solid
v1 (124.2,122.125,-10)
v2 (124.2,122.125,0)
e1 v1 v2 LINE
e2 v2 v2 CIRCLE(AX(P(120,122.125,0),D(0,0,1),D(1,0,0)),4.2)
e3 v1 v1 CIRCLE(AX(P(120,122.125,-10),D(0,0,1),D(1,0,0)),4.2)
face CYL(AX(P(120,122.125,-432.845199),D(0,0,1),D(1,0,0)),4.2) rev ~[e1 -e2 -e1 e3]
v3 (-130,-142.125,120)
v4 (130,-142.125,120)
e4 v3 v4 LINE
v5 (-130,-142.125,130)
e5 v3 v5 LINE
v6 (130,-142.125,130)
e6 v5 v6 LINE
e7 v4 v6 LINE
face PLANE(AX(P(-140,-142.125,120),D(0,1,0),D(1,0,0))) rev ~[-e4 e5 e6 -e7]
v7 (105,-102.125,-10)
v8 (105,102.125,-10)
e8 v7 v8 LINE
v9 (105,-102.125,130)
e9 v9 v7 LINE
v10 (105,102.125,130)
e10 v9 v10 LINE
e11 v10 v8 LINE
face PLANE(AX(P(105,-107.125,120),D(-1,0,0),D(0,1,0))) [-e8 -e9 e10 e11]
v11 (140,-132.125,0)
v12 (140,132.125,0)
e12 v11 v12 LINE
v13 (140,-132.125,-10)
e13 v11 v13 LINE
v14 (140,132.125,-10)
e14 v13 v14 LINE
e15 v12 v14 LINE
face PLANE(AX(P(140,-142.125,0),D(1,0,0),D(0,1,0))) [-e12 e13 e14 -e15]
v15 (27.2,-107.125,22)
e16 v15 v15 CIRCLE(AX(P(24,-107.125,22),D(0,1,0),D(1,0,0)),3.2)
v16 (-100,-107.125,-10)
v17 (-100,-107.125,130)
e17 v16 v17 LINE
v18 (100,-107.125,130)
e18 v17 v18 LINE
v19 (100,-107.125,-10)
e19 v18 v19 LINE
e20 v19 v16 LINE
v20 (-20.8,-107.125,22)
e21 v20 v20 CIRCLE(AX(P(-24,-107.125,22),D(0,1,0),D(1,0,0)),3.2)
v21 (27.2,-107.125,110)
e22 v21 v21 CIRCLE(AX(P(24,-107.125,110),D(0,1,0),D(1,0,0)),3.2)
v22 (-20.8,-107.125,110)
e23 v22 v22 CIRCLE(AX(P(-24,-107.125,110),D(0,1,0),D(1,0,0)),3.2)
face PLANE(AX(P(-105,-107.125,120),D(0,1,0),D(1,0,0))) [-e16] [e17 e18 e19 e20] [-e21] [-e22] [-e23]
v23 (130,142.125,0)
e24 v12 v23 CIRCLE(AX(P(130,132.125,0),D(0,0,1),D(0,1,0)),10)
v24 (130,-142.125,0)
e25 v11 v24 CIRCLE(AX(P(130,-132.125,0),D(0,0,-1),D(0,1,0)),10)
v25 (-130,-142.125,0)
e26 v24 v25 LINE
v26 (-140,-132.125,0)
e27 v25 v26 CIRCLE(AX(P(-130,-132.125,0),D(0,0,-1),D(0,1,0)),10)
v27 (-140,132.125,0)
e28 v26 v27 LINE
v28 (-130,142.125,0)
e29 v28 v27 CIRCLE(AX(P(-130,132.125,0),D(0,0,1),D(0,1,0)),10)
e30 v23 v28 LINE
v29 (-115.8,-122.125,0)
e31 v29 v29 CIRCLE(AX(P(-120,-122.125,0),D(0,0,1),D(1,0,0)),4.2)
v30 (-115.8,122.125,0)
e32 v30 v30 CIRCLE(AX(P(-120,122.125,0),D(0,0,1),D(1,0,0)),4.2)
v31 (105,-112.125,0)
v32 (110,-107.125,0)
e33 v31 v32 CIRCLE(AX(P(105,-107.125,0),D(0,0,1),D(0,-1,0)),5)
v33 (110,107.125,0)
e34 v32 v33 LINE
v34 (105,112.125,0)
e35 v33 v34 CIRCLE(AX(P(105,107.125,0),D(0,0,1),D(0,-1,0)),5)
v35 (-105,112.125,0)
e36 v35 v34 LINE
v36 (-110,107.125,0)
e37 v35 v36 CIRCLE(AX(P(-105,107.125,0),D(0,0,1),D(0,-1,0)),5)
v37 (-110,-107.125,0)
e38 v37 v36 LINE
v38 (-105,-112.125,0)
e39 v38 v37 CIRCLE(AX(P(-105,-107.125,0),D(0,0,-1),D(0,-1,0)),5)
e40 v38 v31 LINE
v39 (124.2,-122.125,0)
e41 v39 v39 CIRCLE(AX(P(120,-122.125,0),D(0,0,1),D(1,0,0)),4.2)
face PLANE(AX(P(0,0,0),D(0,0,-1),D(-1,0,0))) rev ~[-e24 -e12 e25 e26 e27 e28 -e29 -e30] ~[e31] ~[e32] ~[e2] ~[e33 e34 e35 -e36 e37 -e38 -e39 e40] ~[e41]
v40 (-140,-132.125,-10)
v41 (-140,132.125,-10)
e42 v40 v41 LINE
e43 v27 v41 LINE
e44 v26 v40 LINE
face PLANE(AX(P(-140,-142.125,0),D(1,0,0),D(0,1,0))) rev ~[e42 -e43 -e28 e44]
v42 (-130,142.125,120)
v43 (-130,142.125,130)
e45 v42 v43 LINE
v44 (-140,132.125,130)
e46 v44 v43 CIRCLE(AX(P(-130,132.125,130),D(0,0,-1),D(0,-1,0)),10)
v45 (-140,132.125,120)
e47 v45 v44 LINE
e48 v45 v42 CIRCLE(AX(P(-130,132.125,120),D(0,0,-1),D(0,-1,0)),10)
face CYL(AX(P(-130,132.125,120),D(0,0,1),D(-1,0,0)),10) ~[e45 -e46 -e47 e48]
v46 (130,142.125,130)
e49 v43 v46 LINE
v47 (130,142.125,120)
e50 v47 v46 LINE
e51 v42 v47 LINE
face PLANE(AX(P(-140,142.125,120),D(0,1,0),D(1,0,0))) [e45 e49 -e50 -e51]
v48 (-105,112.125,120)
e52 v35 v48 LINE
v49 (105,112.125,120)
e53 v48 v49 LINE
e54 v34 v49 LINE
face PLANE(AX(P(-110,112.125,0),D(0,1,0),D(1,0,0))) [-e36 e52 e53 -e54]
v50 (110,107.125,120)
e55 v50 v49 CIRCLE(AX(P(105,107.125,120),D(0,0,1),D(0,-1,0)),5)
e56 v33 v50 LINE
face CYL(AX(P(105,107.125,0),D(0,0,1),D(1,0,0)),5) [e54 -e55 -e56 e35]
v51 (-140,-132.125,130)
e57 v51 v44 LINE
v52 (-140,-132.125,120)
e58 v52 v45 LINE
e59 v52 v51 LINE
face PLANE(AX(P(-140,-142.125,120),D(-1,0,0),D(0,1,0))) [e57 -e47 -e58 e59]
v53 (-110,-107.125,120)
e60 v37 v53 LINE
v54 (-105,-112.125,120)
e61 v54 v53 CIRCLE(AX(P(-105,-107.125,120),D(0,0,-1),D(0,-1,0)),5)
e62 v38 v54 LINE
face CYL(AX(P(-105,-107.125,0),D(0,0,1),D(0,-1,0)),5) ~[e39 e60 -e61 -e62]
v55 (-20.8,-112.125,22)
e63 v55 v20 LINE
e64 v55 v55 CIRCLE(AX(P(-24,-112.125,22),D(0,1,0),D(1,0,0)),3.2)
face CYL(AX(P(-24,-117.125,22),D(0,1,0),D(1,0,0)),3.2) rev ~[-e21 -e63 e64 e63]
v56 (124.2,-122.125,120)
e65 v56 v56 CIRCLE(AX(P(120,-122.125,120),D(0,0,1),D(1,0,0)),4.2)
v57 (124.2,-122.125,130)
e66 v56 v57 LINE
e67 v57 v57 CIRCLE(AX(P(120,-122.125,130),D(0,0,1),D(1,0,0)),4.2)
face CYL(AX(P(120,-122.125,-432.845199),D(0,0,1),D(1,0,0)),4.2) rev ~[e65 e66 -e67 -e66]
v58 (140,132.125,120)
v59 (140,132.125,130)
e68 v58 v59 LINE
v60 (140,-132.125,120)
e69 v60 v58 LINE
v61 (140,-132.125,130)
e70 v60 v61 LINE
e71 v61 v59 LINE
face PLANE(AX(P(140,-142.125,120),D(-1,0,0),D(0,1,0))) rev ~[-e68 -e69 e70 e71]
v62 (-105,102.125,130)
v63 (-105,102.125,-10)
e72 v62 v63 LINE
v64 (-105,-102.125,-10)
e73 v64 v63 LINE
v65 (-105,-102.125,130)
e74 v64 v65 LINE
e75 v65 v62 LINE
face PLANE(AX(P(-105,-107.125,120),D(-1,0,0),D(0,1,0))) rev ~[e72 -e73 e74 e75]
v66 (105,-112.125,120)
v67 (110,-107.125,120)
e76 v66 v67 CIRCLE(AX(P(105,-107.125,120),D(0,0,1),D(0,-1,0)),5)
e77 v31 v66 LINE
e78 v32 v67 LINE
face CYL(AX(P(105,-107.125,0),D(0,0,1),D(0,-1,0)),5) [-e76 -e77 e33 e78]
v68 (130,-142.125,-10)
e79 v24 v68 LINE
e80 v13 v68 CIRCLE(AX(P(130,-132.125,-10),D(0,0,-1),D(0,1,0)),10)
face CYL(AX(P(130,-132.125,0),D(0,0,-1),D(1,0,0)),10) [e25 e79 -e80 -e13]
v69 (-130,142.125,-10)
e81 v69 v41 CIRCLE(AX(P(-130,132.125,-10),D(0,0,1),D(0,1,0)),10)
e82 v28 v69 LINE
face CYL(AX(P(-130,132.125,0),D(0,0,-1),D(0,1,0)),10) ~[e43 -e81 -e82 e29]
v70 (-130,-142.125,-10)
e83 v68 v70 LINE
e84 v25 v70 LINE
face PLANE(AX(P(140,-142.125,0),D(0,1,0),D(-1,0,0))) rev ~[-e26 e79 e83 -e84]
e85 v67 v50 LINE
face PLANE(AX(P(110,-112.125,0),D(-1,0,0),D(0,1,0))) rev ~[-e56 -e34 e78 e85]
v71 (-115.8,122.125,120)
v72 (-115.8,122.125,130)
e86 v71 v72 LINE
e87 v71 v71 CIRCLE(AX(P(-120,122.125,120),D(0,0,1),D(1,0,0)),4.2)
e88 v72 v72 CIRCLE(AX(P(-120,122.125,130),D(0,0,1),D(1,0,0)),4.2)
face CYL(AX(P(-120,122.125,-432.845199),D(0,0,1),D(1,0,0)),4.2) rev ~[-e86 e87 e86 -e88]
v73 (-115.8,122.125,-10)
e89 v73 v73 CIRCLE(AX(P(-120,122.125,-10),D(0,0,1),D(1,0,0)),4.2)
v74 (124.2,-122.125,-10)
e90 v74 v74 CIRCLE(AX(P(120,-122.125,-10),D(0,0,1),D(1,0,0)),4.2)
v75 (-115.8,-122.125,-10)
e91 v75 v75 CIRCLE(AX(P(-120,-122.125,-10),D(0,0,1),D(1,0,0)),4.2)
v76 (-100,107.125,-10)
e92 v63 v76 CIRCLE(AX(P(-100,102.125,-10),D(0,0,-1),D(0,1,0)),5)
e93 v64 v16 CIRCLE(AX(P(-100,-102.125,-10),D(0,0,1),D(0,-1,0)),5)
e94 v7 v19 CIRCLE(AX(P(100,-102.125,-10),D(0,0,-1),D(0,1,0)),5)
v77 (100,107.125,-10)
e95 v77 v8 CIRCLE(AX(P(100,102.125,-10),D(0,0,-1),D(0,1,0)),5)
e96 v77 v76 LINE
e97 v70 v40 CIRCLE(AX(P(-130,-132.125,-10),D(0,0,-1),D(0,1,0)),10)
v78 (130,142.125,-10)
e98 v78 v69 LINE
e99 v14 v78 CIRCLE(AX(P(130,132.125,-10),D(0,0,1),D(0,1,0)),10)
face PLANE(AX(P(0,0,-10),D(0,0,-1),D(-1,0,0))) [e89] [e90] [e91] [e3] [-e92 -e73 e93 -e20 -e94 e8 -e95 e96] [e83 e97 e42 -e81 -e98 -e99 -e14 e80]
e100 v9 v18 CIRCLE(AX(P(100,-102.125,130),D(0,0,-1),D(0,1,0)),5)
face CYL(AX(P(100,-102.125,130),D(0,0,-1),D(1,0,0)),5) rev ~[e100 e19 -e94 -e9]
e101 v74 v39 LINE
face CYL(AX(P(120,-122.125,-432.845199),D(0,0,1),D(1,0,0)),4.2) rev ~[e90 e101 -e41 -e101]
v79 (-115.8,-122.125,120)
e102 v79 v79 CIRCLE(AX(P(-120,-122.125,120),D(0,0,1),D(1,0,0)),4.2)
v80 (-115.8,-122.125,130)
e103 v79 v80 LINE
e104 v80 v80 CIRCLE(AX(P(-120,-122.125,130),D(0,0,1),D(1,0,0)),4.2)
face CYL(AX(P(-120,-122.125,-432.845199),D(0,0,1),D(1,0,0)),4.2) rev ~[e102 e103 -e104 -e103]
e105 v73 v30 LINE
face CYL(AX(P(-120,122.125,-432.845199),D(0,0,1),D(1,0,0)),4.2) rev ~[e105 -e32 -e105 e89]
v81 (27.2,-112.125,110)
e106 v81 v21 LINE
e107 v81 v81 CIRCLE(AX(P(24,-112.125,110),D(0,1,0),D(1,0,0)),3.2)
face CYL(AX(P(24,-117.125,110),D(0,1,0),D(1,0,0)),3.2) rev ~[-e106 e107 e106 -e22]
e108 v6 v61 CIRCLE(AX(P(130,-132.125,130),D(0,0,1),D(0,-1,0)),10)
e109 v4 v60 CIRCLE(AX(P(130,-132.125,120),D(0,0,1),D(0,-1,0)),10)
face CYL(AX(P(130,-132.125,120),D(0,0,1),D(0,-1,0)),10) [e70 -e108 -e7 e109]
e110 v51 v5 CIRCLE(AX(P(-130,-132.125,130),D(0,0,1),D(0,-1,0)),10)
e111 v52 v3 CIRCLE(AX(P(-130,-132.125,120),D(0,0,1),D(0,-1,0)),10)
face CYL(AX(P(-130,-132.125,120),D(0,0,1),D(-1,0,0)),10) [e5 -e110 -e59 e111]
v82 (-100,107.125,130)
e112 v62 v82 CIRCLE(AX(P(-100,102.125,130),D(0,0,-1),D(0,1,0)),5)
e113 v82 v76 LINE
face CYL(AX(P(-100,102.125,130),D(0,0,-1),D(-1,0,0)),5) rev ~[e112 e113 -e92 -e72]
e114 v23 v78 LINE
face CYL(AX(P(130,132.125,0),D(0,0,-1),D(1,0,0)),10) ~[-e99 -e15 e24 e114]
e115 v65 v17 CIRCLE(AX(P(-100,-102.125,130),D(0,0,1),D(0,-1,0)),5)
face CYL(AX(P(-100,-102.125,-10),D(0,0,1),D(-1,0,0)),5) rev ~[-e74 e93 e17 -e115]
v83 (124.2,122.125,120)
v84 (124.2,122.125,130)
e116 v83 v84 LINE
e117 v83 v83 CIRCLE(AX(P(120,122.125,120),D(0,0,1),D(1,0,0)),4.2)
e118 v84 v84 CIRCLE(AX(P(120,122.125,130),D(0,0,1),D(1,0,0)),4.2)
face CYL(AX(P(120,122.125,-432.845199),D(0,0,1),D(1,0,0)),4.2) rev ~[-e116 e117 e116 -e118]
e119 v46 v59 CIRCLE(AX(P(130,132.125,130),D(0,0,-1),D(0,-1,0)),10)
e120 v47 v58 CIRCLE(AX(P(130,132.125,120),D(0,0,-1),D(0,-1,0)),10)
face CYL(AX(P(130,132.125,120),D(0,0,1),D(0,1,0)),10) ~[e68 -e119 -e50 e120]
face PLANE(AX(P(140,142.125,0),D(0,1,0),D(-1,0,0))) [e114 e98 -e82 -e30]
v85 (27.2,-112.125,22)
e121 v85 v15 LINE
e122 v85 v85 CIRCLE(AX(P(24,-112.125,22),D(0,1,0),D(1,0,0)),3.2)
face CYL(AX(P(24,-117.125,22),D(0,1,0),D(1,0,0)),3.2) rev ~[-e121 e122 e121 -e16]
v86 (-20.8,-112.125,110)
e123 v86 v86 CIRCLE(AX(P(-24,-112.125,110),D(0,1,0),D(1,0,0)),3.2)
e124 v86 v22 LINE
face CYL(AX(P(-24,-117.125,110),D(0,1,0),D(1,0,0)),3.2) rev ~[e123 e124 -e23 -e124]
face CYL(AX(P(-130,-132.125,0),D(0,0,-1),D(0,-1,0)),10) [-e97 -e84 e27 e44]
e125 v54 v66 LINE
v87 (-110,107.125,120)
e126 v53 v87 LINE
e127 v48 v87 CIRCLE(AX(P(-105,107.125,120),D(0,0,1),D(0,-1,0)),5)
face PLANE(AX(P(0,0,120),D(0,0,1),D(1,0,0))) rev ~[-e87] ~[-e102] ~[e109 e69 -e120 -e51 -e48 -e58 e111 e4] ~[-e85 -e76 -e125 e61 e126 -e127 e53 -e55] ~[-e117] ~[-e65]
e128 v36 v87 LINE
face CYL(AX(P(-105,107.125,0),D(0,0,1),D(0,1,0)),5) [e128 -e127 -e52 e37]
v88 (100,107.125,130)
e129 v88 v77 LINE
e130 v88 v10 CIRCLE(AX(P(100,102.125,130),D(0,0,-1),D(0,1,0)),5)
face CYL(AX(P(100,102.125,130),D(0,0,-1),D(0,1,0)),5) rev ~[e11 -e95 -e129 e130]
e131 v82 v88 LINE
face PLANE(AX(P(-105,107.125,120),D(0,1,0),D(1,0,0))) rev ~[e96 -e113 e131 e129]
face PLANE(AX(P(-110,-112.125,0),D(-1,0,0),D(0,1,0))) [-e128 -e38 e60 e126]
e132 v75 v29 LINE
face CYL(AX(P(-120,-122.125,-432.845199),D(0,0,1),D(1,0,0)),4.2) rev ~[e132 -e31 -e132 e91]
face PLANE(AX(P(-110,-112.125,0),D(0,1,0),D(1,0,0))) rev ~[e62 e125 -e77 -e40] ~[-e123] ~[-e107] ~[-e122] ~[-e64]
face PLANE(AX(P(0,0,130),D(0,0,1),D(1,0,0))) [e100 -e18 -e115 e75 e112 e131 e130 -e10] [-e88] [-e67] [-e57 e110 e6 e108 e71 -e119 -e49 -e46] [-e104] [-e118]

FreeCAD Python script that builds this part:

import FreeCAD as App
import Part
import Sketcher


def edges_at(feature, points):
    """Names of the edges that pass closest to the given points."""
    edges = feature.Shape.Edges
    near = lambda p: min(range(len(edges)), key=lambda i: edges[i].distToShape(Part.Vertex(*p))[0])
    return sorted({f"Edge{near(p) + 1}" for p in points})


def add_polygon(sketch, points):
    """Adds a closed chain of lines whose ends are joined by coincident constraints."""
    first, n = sketch.GeometryCount, len(points)
    for a, b in zip(points, points[1:] + points[:1]):
        sketch.addGeometry(Part.LineSegment(App.Vector(*a, 0), App.Vector(*b, 0)), False)
    for i in range(n):
        sketch.addConstraint(Sketcher.Constraint("Coincident", first + i, 2, first + (i + 1) % n, 1))

doc = App.newDocument("Part")
body = doc.addObject("PartDesign::Body", "Body")

sketch1 = body.newObject("Sketcher::SketchObject", "Sketch")
sketch1.AttachmentSupport = (doc.getObject("XY_Plane"), [""])
sketch1.MapMode = "FlatFace"
add_polygon(sketch1, [(-110, 112), (-110, -112), (110, -112), (110, 112)])
add_polygon(sketch1, [(105, -107), (-105, -107), (-105, 107), (105, 107)])
sketch1.addConstraint([
    Sketcher.Constraint("Vertical", 0),
    Sketcher.Constraint("Horizontal", 1),
    Sketcher.Constraint("Vertical", 2),
    Sketcher.Constraint("Horizontal", 3),
    Sketcher.Constraint("Horizontal", 4),
    Sketcher.Constraint("Vertical", 5),
    Sketcher.Constraint("Horizontal", 6),
    Sketcher.Constraint("Vertical", 7),
    Sketcher.Constraint("Symmetric", 0, 2, 2, 2, -1, 1),
    Sketcher.Constraint("Symmetric", 4, 2, 6, 2, -1, 1),
    Sketcher.Constraint("DistanceX", 1, 1, 1, 2, 220.0),
    Sketcher.Constraint("DistanceX", 4, 2, 4, 1, 210.0),
    Sketcher.Constraint("DistanceY", 0, 2, 4, 2, 5.0),
    Sketcher.Constraint("DistanceY", 0, 2, 0, 1, 224.25),
])
pad1 = body.newObject("PartDesign::Pad", "Pad")
pad1.Profile = sketch1
pad1.Length = 120

sketch2 = body.newObject("Sketcher::SketchObject", "Sketch001")
sketch2.AttachmentSupport = (doc.getObject("XY_Plane"), [""])
sketch2.MapMode = "FlatFace"
add_polygon(sketch2, [(140, 142), (140, -142), (-140, -142), (-140, 142)])
add_polygon(sketch2, [(-105, -107), (105, -107), (105, 107), (-105, 107)])
sketch2.addConstraint([
    Sketcher.Constraint("Vertical", 0),
    Sketcher.Constraint("Horizontal", 1),
    Sketcher.Constraint("Vertical", 2),
    Sketcher.Constraint("Horizontal", 3),
    Sketcher.Constraint("Horizontal", 4),
    Sketcher.Constraint("Vertical", 5),
    Sketcher.Constraint("Horizontal", 6),
    Sketcher.Constraint("Vertical", 7),
    Sketcher.Constraint("Symmetric", 0, 2, 2, 2, -1, 1),
    Sketcher.Constraint("Symmetric", 4, 2, 6, 2, -1, 1),
    Sketcher.Constraint("DistanceX", 1, 2, 1, 1, 280.0),
    Sketcher.Constraint("DistanceX", 4, 1, 4, 2, 210.0),
    Sketcher.Constraint("DistanceY", 0, 2, 4, 2, 35.0),
    Sketcher.Constraint("DistanceY", 0, 2, 0, 1, 284.25),
])
pad2 = body.newObject("PartDesign::Pad", "Pad001")
pad2.Profile = sketch2
pad2.Length = 10
pad2.Reversed = True

sketch3 = body.newObject("Sketcher::SketchObject", "Sketch002")
sketch3.AttachmentSupport = (doc.getObject("XY_Plane"), [""])
sketch3.MapMode = "FlatFace"
sketch3.AttachmentOffset = App.Placement(App.Vector(0, 0, 120), App.Rotation())
add_polygon(sketch3, [(-140, 142), (-140, -142), (140, -142), (140, 142)])
add_polygon(sketch3, [(105, -107), (-105, -107), (-105, 107), (105, 107)])
sketch3.addConstraint([
    Sketcher.Constraint("Vertical", 0),
    Sketcher.Constraint("Horizontal", 1),
    Sketcher.Constraint("Vertical", 2),
    Sketcher.Constraint("Horizontal", 3),
    Sketcher.Constraint("Horizontal", 4),
    Sketcher.Constraint("Vertical", 5),
    Sketcher.Constraint("Horizontal", 6),
    Sketcher.Constraint("Vertical", 7),
    Sketcher.Constraint("Symmetric", 0, 2, 2, 2, -1, 1),
    Sketcher.Constraint("Symmetric", 4, 2, 6, 2, -1, 1),
    Sketcher.Constraint("DistanceX", 1, 1, 1, 2, 280.0),
    Sketcher.Constraint("DistanceX", 4, 2, 4, 1, 210.0),
    Sketcher.Constraint("DistanceY", 0, 2, 4, 2, 35.0),
    Sketcher.Constraint("DistanceY", 0, 2, 0, 1, 284.25),
])
pad3 = body.newObject("PartDesign::Pad", "Pad002")
pad3.Profile = sketch3
pad3.Length = 10
doc.recompute()

fillet = body.newObject("PartDesign::Fillet", "Fillet")
fillet.Base = (pad3, edges_at(pad3, [
    (105, -107.125, 60),
    (105, 107.125, 60),
    (-105, 107.125, 60),
    (-105, -107.125, 60),
    (110, -112.125, 60),
    (-110, -112.125, 60),
    (-110, 112.125, 60),
    (110, 112.125, 60),
]))
fillet.Radius = 5
doc.recompute()

fillet2 = body.newObject("PartDesign::Fillet", "Fillet001")
fillet2.Base = (fillet, edges_at(fillet, [
    (140, 142.125, -5),
    (140, -142.125, -5),
    (-140, -142.125, -5),
    (-140, 142.125, -5),
    (-140, 142.125, 125),
    (-140, -142.125, 125),
    (140, -142.125, 125),
    (140, 142.125, 125),
]))
fillet2.Radius = 10

sketch4 = body.newObject("Sketcher::SketchObject", "Sketch003")
sketch4.AttachmentSupport = (doc.getObject("XY_Plane"), [""])
sketch4.MapMode = "FlatFace"
sketch4.AttachmentOffset = App.Placement(App.Vector(0, 0, -10), App.Rotation())
sketch4.addGeometry([
    Part.Circle(App.Vector(-120, -122.1, 0), App.Vector(0, 0, 1), 4.2),
    Part.Circle(App.Vector(-120, 122.1, 0), App.Vector(0, 0, 1), 4.2),
    Part.Circle(App.Vector(120, 122.1, 0), App.Vector(0, 0, 1), 4.2),
    Part.Circle(App.Vector(120, -122.1, 0), App.Vector(0, 0, 1), 4.2),
], False)
sketch4.addConstraint([
    Sketcher.Constraint("Equal", 0, 1),
    Sketcher.Constraint("Equal", 1, 2),
    Sketcher.Constraint("Equal", 2, 3),
    Sketcher.Constraint("Symmetric", 0, 3, 2, 3, -1, 1),
    Sketcher.Constraint("Symmetric", 1, 3, 3, 3, -1, 1),
    Sketcher.Constraint("Symmetric", 1, 3, 2, 3, -2),
    Sketcher.Constraint("Diameter", 0, 8.4),
    Sketcher.Constraint("DistanceX", 0, 3, -1, 1, 120.0),
    Sketcher.Constraint("DistanceY", 0, 3, 1, 3, 244.25),
])
doc.recompute()
hole = body.newObject("PartDesign::Hole", "Hole")
hole.Profile = sketch4
hole.ThreadType = "None"
hole.Diameter = 8.4
hole.DepthType = "ThroughAll"
hole.Reversed = True

sketch5 = body.newObject("Sketcher::SketchObject", "Sketch004")
sketch5.AttachmentSupport = (doc.getObject("XZ_Plane"), [""])
sketch5.MapMode = "FlatFace"
sketch5.AttachmentOffset = App.Placement(App.Vector(0, 0, 112.125), App.Rotation())
sketch5.addGeometry([
    Part.Circle(App.Vector(-24, 110, 0), App.Vector(0, 0, 1), 3.2),
    Part.Circle(App.Vector(24, 110, 0), App.Vector(0, 0, 1), 3.2),
    Part.Circle(App.Vector(24, 22, 0), App.Vector(0, 0, 1), 3.2),
    Part.Circle(App.Vector(-24, 22, 0), App.Vector(0, 0, 1), 3.2),
], False)
sketch5.addConstraint([
    Sketcher.Constraint("Equal", 0, 1),
    Sketcher.Constraint("Equal", 1, 2),
    Sketcher.Constraint("Equal", 2, 3),
    Sketcher.Constraint("Symmetric", 0, 3, 1, 3, -2),
    Sketcher.Constraint("Symmetric", 2, 3, 3, 3, -2),
    Sketcher.Constraint("Vertical", 1, 3, 2, 3),
    Sketcher.Constraint("Diameter", 0, 6.4),
    Sketcher.Constraint("DistanceX", 0, 3, -1, 1, 24.0),
    Sketcher.Constraint("DistanceY", -1, 1, 0, 3, 110.0),
    Sketcher.Constraint("DistanceY", -1, 1, 2, 3, 22.0),
])
doc.recompute()
hole2 = body.newObject("PartDesign::Hole", "Hole001")
hole2.Profile = sketch5
hole2.ThreadType = "None"
hole2.Diameter = 6.4
hole2.DepthType = "Dimension"
hole2.Depth = 5
hole2.DrillPoint = "Flat"

doc.recompute()
